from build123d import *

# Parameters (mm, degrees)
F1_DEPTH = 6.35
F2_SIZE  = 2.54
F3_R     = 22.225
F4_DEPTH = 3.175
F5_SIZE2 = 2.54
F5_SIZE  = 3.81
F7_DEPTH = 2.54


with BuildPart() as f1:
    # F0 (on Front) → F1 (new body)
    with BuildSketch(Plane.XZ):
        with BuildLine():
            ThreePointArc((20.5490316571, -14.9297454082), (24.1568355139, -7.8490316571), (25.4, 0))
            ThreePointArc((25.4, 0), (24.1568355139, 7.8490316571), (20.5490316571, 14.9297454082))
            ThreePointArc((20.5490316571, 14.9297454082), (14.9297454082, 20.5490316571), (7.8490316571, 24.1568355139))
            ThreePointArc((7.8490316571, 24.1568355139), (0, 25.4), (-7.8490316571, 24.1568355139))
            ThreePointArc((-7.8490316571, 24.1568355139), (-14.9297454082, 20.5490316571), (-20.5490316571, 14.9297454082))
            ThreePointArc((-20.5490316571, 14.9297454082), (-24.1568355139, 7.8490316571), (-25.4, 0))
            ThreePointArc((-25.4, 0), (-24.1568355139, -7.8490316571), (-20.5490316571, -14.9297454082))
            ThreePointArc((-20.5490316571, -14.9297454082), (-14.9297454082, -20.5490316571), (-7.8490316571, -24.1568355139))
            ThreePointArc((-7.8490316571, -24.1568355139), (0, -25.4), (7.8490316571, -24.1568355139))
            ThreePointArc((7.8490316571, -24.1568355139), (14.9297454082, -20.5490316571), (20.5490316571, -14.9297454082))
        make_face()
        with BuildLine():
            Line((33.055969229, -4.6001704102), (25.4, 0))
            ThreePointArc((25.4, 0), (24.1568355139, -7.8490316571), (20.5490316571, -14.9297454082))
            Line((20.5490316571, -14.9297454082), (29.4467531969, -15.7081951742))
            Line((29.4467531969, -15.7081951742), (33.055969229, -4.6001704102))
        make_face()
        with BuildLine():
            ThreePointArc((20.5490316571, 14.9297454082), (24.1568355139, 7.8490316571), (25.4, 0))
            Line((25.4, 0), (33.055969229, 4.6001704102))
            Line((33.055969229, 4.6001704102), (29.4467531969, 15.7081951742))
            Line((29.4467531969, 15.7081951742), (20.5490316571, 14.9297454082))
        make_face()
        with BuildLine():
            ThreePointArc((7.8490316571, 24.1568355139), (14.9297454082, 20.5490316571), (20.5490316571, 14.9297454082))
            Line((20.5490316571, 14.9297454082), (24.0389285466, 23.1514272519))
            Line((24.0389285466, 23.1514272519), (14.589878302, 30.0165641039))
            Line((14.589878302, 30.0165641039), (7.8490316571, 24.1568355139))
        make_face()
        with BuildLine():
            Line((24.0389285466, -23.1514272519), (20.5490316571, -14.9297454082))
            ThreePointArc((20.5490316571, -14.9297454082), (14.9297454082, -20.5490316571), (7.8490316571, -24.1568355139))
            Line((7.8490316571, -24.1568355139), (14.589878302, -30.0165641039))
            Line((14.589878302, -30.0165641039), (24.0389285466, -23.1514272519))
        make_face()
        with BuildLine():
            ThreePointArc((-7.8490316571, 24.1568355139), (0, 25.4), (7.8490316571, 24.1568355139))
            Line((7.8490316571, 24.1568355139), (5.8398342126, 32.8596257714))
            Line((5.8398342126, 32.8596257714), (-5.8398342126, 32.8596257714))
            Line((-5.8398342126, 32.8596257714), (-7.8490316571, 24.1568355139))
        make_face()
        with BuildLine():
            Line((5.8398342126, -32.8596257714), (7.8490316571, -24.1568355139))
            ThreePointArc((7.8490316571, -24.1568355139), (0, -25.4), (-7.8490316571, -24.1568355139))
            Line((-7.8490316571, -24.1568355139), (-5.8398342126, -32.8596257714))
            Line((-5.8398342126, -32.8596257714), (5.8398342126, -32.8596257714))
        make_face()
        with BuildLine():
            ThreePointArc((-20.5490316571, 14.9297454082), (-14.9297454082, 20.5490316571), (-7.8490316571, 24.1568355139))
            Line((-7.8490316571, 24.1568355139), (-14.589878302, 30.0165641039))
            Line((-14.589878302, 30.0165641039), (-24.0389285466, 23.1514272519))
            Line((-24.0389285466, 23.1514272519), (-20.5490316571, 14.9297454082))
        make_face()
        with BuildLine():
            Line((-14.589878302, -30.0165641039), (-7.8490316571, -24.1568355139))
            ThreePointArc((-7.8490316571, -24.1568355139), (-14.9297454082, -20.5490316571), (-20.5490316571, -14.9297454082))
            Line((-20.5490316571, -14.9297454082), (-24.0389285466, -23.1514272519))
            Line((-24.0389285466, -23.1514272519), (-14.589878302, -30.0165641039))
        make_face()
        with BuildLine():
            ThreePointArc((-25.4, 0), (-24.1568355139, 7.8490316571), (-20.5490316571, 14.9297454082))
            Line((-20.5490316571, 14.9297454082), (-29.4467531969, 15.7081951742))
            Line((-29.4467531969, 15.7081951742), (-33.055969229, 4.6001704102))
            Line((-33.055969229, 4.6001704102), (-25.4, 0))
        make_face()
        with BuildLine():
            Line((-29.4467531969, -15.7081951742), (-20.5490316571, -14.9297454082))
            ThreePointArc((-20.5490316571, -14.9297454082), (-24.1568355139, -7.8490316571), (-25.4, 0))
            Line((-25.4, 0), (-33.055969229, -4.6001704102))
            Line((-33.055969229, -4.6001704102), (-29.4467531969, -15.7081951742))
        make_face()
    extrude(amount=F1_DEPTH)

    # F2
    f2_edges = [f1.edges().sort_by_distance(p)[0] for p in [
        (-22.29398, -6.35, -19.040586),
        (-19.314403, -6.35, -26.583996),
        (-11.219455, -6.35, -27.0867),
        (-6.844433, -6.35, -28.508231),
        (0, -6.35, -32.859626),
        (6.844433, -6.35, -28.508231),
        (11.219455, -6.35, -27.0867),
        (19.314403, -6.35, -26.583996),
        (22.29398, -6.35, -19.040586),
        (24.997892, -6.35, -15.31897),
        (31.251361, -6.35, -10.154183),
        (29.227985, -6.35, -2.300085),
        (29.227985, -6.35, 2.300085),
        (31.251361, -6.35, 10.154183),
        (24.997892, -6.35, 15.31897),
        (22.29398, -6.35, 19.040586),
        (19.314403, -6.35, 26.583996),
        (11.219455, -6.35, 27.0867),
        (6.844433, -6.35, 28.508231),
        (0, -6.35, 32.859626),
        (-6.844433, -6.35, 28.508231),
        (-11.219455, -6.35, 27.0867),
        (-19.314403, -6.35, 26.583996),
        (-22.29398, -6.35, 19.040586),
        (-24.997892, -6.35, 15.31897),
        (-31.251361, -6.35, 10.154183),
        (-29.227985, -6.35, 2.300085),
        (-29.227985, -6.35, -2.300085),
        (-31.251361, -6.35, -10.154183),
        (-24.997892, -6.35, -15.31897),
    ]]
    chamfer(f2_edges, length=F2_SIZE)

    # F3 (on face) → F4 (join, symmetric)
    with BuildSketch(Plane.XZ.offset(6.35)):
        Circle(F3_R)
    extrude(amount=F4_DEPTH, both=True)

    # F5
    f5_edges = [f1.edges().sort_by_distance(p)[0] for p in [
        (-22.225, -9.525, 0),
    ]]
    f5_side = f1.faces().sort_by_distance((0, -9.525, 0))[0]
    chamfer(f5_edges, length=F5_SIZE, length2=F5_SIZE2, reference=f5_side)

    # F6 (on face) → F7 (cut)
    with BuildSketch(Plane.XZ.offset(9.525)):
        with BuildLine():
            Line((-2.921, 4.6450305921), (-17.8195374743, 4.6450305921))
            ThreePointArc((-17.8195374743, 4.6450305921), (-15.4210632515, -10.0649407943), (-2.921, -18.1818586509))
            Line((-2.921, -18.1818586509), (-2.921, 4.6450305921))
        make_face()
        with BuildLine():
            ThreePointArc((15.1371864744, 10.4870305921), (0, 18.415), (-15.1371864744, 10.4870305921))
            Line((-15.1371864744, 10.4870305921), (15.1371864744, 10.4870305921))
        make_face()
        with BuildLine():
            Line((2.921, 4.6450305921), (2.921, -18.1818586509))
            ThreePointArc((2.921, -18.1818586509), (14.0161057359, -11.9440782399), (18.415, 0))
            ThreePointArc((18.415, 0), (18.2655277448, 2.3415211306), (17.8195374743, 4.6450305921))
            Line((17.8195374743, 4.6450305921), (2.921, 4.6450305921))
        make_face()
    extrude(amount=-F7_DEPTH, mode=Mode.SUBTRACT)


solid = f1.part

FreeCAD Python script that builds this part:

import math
import FreeCAD as App
import Part
import Sketcher

V = App.Vector
Q = App.Units.Quantity


def edges_at(feature, points):
    """Names of the edges that pass closest to the given points."""
    edges = feature.Shape.Edges
    near = lambda p: min(range(len(edges)), key=lambda i: edges[i].distToShape(Part.Vertex(*p))[0])
    return sorted({f"Edge{near(p) + 1}" for p in points})


def add_polygon(sketch, points):
    """Adds a closed chain of lines whose ends are joined by coincident constraints."""
    first, n = sketch.GeometryCount, len(points)
    for a, b in zip(points, points[1:] + points[:1]):
        sketch.addGeometry(Part.LineSegment(App.Vector(*a, 0), App.Vector(*b, 0)), False)
    for i in range(n):
        sketch.addConstraint(Sketcher.Constraint("Coincident", first + i, 2, first + (i + 1) % n, 1))

doc = App.newDocument("Part")
params = doc.addObject("Spreadsheet::Sheet", "Params")
for row, (alias, value) in enumerate([
    ("pad1_length", "0.25 in"),
    ("chamfer_size", "0.1 in"),
    ("sketch2_diameter", "1.75 in"),
    ("pad2_length", "0.25 in"),
    ("chamfer2_size", "0.15 in"),
    ("chamfer2_size2", "0.1 in"),
    ("sketch3_radius", "0.725 in"),
    ("pocket1_length", "0.1 in"),
], start=1):
    params.set(f"A{row}", alias)
    params.set(f"B{row}", "=" + value)
    params.setAlias(f"B{row}", alias)

body = doc.addObject("PartDesign::Body", "Body")

# Sketch on XZ plane
sketch1 = body.newObject("Sketcher::SketchObject", "Sketch")
sketch1.AttachmentSupport = (doc.getObject("XZ_Plane"), [""])
sketch1.MapMode = "FlatFace"
add_polygon(sketch1, [(-21, -15), (-24, -23), (-15, -30), (-8, -24), (-6, -33), (6, -33), (8, -24), (15, -30), (24, -23), (21, -15), (29, -16), (33, -5), (25, 0), (33, 5), (29, 16), (21, 15), (24, 23), (15, 30), (8, 24), (6, 33), (-6, 33), (-8, 24), (-15, 30), (-24, 23), (-21, 15), (-29, 16), (-33, 5), (-25, 0), (-33, -5), (-29, -16)])  # lines 0-29
sketch1.addConstraint(Sketcher.Constraint("Horizontal", 4))
sketch1.addConstraint(Sketcher.Constraint("Horizontal", 19))
sketch1.addConstraint(Sketcher.Constraint("Symmetric", 0, 2, 15, 2, -1, 1))
sketch1.addConstraint(Sketcher.Constraint("Symmetric", 1, 2, 16, 2, -1, 1))
sketch1.addConstraint(Sketcher.Constraint("Symmetric", 2, 2, 17, 2, -1, 1))
sketch1.addConstraint(Sketcher.Constraint("Symmetric", 3, 2, 18, 2, -1, 1))
sketch1.addConstraint(Sketcher.Constraint("Symmetric", 5, 2, 20, 2, -1, 1))
sketch1.addConstraint(Sketcher.Constraint("Symmetric", 6, 2, 21, 2, -1, 1))
sketch1.addConstraint(Sketcher.Constraint("Symmetric", 7, 2, 22, 2, -1, 1))
sketch1.addConstraint(Sketcher.Constraint("Symmetric", 8, 2, 23, 2, -1, 1))
sketch1.addConstraint(Sketcher.Constraint("Symmetric", 9, 2, 24, 2, -1, 1))
sketch1.addConstraint(Sketcher.Constraint("Symmetric", 10, 2, 25, 2, -1, 1))
sketch1.addConstraint(Sketcher.Constraint("Symmetric", 11, 2, 26, 2, -1, 1))
sketch1.addConstraint(Sketcher.Constraint("Symmetric", 12, 2, 27, 2, -1, 1))
sketch1.addConstraint(Sketcher.Constraint("Symmetric", 13, 2, 28, 2, -1, 1))
sketch1.addConstraint(Sketcher.Constraint("Symmetric", 14, 2, 29, 2, -1, 1))
sketch1.addConstraint(Sketcher.Constraint("Symmetric", 2, 2, 5, 2, -2))
sketch1.addConstraint(Sketcher.Constraint("Symmetric", 1, 2, 6, 2, -2))
sketch1.addConstraint(Sketcher.Constraint("Symmetric", 0, 2, 7, 2, -2))
sketch1.addConstraint(Sketcher.Constraint("Symmetric", 14, 2, 23, 2, -2))
sketch1.addConstraint(Sketcher.Constraint("Symmetric", 13, 2, 24, 2, -2))
sketch1.addConstraint(Sketcher.Constraint("Symmetric", 12, 2, 25, 2, -2))
sketch1.addConstraint(Sketcher.Constraint("PointOnObject", 11, 2, -1))
sketch1.addConstraint(Sketcher.Constraint("Parallel", 5, 20))
sketch1.addConstraint(Sketcher.Constraint("Vertical", 4, 2, 18, 2))
sketch1.addConstraint(Sketcher.Constraint("Equal", 0, 2))
sketch1.addConstraint(Sketcher.Constraint("Equal", 2, 3))
sketch1.addConstraint(Sketcher.Constraint("Equal", 8, 9))
sketch1.addConstraint(Sketcher.Constraint("Equal", 7, 10))
sketch1.addConstraint(Sketcher.Constraint("Equal", 9, 11))
sketch1.addConstraint(Sketcher.Constraint("DistanceX", -1, 1, 11, 2, Q("1 in")))
sketch1.addConstraint(Sketcher.Constraint("Angle", 0, Q("-113 deg")))
sketch1.addConstraint(Sketcher.Constraint("Angle", 1, Q("-36 deg")))
sketch1.addConstraint(Sketcher.Constraint("Angle", 2, Q("41 deg")))
sketch1.addConstraint(Sketcher.Constraint("Angle", 3, Q("-77 deg")))
sketch1.addConstraint(Sketcher.Constraint("Angle", 9, Q("-5 deg")))
sketch1.addConstraint(Sketcher.Constraint("Angle", 10, Q("72 deg")))
sketch1.addConstraint(Sketcher.Constraint("Angle", 11, Q("149 deg")))
sketch1.addConstraint(Sketcher.Constraint("DistanceX", 5, 2, 8, 2, Q("0.5 in")))
sketch1.addConstraint(Sketcher.Constraint("DistanceX", 4, 1, 4, 2, 11.679668))
pad1 = body.newObject("PartDesign::Pad", "Pad")
pad1.Profile = sketch1
pad1.setExpression("Length", "Params.pad1_length")
doc.recompute()

chamfer = body.newObject("PartDesign::Chamfer", "Chamfer")
chamfer.Base = (pad1, edges_at(pad1, [
    (-22.294, -6.35, -19.041),
    (-19.314, -6.35, -26.584),
    (-11.219, -6.35, -27.087),
    (-6.844, -6.35, -28.508),
    (0, -6.35, -32.86),
    (6.844, -6.35, -28.508),
    (11.219, -6.35, -27.087),
    (19.314, -6.35, -26.584),
    (22.294, -6.35, -19.041),
    (24.998, -6.35, -15.319),
    (31.251, -6.35, -10.154),
    (29.228, -6.35, -2.3),
    (29.228, -6.35, 2.3),
    (31.251, -6.35, 10.154),
    (24.998, -6.35, 15.319),
    (22.294, -6.35, 19.041),
    (19.314, -6.35, 26.584),
    (11.219, -6.35, 27.087),
    (6.844, -6.35, 28.508),
    (0, -6.35, 32.86),
    (-6.844, -6.35, 28.508),
    (-11.219, -6.35, 27.087),
    (-19.314, -6.35, 26.584),
    (-22.294, -6.35, 19.041),
    (-24.998, -6.35, 15.319),
    (-31.251, -6.35, 10.154),
    (-29.228, -6.35, 2.3),
    (-29.228, -6.35, -2.3),
    (-31.251, -6.35, -10.154),
    (-24.998, -6.35, -15.319),
]))
chamfer.setExpression("Size", "Params.chamfer_size")

# Sketch on XZ plane
sketch2 = body.newObject("Sketcher::SketchObject", "Sketch001")
sketch2.AttachmentSupport = (doc.getObject("XZ_Plane"), [""])
sketch2.MapMode = "FlatFace"
sketch2.AttachmentOffset = App.Placement(V(0, 0, 0.25 * 25.4), App.Rotation())
sketch2.addGeometry(Part.Circle(V(0, 0, 0), V(0, 0, 1), 22), False)
sketch2.addConstraint(Sketcher.Constraint("Coincident", 0, 3, -1, 1))
sketch2.addConstraint(Sketcher.Constraint("Diameter", 0, Q("1.75 in")))
sketch2.setExpression("Constraints[1]", "Params.sketch2_diameter")
pad2 = body.newObject("PartDesign::Pad", "Pad001")
pad2.Profile = sketch2
pad2.setExpression("Length", "Params.pad2_length")
pad2.Midplane = True
doc.recompute()

chamfer2 = body.newObject("PartDesign::Chamfer", "Chamfer001")
chamfer2.Base = (pad2, edges_at(pad2, [(-22.225, -9.525, 0)]))
chamfer2.ChamferType = "Two distances"
chamfer2.setExpression("Size", "Params.chamfer2_size")
chamfer2.setExpression("Size2", "Params.chamfer2_size2")
chamfer2.FlipDirection = True

# Sketch on XZ plane
sketch3 = body.newObject("Sketcher::SketchObject", "Sketch002")
sketch3.AttachmentSupport = (doc.getObject("XZ_Plane"), [""])
sketch3.MapMode = "FlatFace"
sketch3.AttachmentOffset = App.Placement(V(0, 0, 0.375 * 25.4), App.Rotation())
sketch3.addGeometry(Part.LineSegment(V(-2.9, 4.6, 0), V(-17.8, 4.6, 0)), False)
sketch3.addGeometry(Part.ArcOfCircle(Part.Circle(V(0, 0, 0), V(0, 0, 1), 18.4), math.radians(165), math.radians(261)), False)
sketch3.addGeometry(Part.LineSegment(V(-2.9, -18.2, 0), V(-2.9, 4.6, 0)), False)
sketch3.addGeometry(Part.ArcOfCircle(Part.Circle(V(0, 0, 0), V(0, 0, 1), 18.4), math.radians(35), math.radians(145)), False)
sketch3.addGeometry(Part.LineSegment(V(-15.1, 10.5, 0), V(15.1, 10.5, 0)), False)
sketch3.addGeometry(Part.LineSegment(V(2.9, 4.6, 0), V(2.9, -18.2, 0)), False)
sketch3.addGeometry(Part.ArcOfCircle(Part.Circle(V(0, 0, 0), V(0, 0, 1), 18.4), math.radians(-81), math.radians(0)), False)
sketch3.addGeometry(Part.ArcOfCircle(Part.Circle(V(0, 0, 0), V(0, 0, 1), 18.4), math.radians(0), math.radians(14.61)), False)
sketch3.addGeometry(Part.LineSegment(V(17.8, 4.6, 0), V(2.9, 4.6, 0)), False)
sketch3.addConstraint(Sketcher.Constraint("Coincident", 0, 2, 1, 1))
sketch3.addConstraint(Sketcher.Constraint("Coincident", 1, 2, 2, 1))
sketch3.addConstraint(Sketcher.Constraint("Coincident", 2, 2, 0, 1))
sketch3.addConstraint(Sketcher.Constraint("Coincident", 3, 1, 4, 2))
sketch3.addConstraint(Sketcher.Constraint("Coincident", 4, 1, 3, 2))
sketch3.addConstraint(Sketcher.Constraint("Coincident", 5, 2, 6, 1))
sketch3.addConstraint(Sketcher.Constraint("Tangent", 6, 2, 7, 1))
sketch3.addConstraint(Sketcher.Constraint("Coincident", 7, 2, 8, 1))
sketch3.addConstraint(Sketcher.Constraint("Coincident", 8, 2, 5, 1))
sketch3.addConstraint(Sketcher.Constraint("Horizontal", 0))
sketch3.addConstraint(Sketcher.Constraint("Vertical", 2))
sketch3.addConstraint(Sketcher.Constraint("Horizontal", 4))
sketch3.addConstraint(Sketcher.Constraint("Vertical", 5))
sketch3.addConstraint(Sketcher.Constraint("Horizontal", 8))
sketch3.addConstraint(Sketcher.Constraint("Coincident", 1, 3, -1, 1))
sketch3.addConstraint(Sketcher.Constraint("Coincident", 3, 3, -1, 1))
sketch3.addConstraint(Sketcher.Constraint("Coincident", 6, 3, -1, 1))
sketch3.addConstraint(Sketcher.Constraint("Equal", 1, 3))
sketch3.addConstraint(Sketcher.Constraint("Equal", 3, 6))
sketch3.addConstraint(Sketcher.Constraint("Equal", 6, 7))
sketch3.addConstraint(Sketcher.Constraint("Symmetric", 2, 2, 8, 2, -2))
sketch3.addConstraint(Sketcher.Constraint("PointOnObject", 6, 2, -1))
sketch3.addConstraint(Sketcher.Constraint("Radius", 1, Q("0.725 in")))
sketch3.addConstraint(Sketcher.Constraint("DistanceY", 2, 2, 3, 1, Q("0.23 in")))
sketch3.addConstraint(Sketcher.Constraint("DistanceX", 1, 2, 5, 2, Q("0.23 in")))
sketch3.addConstraint(Sketcher.Constraint("DistanceY", 2, 1, 2, 2, 22.826889))
sketch3.setExpression("Constraints[22]", "Params.sketch3_radius")
pocket1 = body.newObject("PartDesign::Pocket", "Pocket")
pocket1.Profile = sketch3
pocket1.setExpression("Length", "Params.pocket1_length")

doc.recompute()
